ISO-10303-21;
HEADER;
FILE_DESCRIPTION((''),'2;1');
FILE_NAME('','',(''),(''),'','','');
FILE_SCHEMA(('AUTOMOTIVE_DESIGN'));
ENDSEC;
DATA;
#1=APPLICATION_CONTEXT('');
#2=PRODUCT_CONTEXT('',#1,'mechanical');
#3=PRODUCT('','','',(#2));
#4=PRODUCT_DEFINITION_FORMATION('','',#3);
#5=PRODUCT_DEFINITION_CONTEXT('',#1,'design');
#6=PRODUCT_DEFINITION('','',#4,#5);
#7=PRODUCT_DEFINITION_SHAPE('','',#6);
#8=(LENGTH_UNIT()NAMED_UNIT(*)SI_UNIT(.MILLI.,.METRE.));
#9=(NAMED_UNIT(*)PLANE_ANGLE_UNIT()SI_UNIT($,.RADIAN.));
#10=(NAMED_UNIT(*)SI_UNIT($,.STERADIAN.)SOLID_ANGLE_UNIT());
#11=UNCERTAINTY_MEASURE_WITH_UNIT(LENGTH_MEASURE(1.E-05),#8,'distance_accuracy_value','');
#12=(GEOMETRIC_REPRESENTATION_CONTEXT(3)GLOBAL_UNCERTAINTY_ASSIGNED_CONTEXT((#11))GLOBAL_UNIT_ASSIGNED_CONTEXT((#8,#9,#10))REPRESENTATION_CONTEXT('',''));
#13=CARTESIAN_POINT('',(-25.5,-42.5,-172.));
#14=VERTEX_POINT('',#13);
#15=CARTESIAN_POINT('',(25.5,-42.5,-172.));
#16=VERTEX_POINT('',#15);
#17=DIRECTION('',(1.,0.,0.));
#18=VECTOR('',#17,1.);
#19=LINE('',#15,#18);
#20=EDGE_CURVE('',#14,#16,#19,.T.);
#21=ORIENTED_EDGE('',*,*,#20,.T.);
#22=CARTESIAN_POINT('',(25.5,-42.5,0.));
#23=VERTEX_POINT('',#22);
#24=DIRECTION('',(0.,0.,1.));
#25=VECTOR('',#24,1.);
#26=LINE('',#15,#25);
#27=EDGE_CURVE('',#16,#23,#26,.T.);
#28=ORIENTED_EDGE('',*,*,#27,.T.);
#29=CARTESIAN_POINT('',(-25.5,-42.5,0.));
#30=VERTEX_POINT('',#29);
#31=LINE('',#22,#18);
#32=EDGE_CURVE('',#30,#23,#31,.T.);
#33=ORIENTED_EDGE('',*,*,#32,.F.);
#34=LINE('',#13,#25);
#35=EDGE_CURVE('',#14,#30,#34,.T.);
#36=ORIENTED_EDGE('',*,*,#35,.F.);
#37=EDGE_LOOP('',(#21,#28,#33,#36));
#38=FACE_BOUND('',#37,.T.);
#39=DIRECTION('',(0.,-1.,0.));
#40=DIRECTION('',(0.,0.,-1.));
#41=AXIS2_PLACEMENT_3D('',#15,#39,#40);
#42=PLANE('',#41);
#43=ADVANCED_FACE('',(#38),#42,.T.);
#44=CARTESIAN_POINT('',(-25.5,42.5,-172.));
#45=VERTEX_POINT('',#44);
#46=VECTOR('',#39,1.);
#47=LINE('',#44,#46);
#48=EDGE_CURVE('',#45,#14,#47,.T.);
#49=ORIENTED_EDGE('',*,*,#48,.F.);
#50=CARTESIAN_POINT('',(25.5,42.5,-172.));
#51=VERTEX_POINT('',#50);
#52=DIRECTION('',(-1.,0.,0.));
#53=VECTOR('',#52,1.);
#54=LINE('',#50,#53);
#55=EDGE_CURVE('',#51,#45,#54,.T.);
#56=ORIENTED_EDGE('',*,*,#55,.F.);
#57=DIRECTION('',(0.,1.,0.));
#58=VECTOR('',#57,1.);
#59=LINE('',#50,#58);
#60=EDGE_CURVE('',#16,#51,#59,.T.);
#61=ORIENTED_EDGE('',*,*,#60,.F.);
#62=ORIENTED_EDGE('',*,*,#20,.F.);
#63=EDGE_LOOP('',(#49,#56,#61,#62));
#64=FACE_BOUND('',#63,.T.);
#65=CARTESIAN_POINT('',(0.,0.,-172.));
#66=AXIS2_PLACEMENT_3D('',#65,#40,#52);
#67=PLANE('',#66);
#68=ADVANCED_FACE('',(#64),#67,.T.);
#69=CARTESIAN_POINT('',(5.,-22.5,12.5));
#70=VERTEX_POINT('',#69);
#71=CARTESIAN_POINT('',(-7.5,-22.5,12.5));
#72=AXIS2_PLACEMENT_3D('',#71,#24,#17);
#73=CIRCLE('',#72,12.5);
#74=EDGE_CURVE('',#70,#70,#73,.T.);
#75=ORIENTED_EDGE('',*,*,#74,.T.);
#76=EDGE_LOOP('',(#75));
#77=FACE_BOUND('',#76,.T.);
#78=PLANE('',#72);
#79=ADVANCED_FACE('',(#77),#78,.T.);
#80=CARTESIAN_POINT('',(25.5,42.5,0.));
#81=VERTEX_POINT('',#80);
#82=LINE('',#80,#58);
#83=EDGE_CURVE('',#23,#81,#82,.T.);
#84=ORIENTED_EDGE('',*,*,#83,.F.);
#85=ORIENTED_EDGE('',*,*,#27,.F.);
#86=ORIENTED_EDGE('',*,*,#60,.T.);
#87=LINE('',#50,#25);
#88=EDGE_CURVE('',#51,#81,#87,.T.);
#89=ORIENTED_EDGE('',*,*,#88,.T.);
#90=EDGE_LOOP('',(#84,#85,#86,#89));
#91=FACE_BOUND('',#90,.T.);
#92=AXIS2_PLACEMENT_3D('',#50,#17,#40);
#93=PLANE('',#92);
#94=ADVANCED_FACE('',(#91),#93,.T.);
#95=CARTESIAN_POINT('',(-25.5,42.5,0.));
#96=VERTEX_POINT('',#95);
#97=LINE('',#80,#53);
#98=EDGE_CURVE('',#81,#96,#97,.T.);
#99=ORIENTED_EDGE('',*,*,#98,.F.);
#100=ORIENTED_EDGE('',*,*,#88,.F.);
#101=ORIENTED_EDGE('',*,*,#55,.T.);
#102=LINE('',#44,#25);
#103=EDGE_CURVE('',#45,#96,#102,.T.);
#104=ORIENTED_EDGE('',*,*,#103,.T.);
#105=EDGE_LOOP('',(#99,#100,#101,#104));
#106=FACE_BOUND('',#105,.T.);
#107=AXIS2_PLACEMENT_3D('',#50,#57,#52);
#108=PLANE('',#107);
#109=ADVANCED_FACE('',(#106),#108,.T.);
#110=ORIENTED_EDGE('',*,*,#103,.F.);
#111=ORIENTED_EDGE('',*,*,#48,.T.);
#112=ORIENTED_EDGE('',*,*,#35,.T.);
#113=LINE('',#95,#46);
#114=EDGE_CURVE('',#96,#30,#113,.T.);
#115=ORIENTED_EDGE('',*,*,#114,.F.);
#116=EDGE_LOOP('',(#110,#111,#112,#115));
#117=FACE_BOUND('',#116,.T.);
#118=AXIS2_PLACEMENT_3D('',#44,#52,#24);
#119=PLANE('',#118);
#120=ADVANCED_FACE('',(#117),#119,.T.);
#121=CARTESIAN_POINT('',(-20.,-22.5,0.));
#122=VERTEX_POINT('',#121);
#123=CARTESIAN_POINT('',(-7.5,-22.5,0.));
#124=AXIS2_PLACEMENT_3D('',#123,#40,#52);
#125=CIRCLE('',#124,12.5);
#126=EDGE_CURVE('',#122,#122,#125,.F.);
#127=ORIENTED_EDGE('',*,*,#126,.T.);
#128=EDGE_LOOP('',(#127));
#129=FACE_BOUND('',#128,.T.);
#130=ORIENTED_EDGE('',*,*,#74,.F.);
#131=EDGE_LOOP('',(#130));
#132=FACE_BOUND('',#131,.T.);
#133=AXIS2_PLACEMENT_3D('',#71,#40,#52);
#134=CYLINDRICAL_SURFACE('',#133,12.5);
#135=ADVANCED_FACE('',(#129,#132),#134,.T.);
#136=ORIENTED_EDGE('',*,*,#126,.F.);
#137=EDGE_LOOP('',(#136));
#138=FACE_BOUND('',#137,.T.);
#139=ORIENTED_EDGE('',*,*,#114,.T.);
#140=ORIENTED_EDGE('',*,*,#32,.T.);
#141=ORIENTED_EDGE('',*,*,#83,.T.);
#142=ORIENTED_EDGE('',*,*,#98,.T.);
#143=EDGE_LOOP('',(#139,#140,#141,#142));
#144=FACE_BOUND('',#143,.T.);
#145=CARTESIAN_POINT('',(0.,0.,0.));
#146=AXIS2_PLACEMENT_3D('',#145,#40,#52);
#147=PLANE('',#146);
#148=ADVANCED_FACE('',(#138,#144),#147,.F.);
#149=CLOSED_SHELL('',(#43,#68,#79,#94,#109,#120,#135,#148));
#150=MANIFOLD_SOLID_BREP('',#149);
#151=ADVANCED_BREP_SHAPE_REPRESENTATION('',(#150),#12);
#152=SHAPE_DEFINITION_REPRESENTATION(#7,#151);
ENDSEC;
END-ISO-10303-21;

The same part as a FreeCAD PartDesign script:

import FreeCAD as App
import Part
import Sketcher

V = App.Vector


def add_polygon(sketch, points):
    """Adds a closed chain of lines whose ends are joined by coincident constraints."""
    first, n = sketch.GeometryCount, len(points)
    for a, b in zip(points, points[1:] + points[:1]):
        sketch.addGeometry(Part.LineSegment(App.Vector(*a, 0), App.Vector(*b, 0)), False)
    for i in range(n):
        sketch.addConstraint(Sketcher.Constraint("Coincident", first + i, 2, first + (i + 1) % n, 1))

doc = App.newDocument("Part")
body = doc.addObject("PartDesign::Body", "Body")

# Sketch on XY plane
sketch1 = body.newObject("Sketcher::SketchObject", "Sketch")
sketch1.AttachmentSupport = (doc.getObject("XY_Plane"), [""])
sketch1.MapMode = "FlatFace"
add_polygon(sketch1, [(-26, 42), (-26, -42), (26, -42), (26, 42)])  # lines 0-3
sketch1.addConstraint(Sketcher.Constraint("Vertical", 0))
sketch1.addConstraint(Sketcher.Constraint("Horizontal", 1))
sketch1.addConstraint(Sketcher.Constraint("Vertical", 2))
sketch1.addConstraint(Sketcher.Constraint("Horizontal", 3))
sketch1.addConstraint(Sketcher.Constraint("Symmetric", 0, 2, 2, 2, -1, 1))
sketch1.addConstraint(Sketcher.Constraint("DistanceX", 1, 1, 1, 2, 51.0))
sketch1.addConstraint(Sketcher.Constraint("DistanceY", 0, 2, 0, 1, 85.0))
pad1 = body.newObject("PartDesign::Pad", "Pad")
pad1.Profile = sketch1
pad1.Length = 172
pad1.Reversed = True

# Sketch on XY plane
sketch2 = body.newObject("Sketcher::SketchObject", "Sketch001")
sketch2.AttachmentSupport = (doc.getObject("XY_Plane"), [""])
sketch2.MapMode = "FlatFace"
sketch2.addGeometry(Part.Circle(V(-8, -22, 0), V(0, 0, 1), 12), False)
sketch2.addConstraint(Sketcher.Constraint("Diameter", 0, 25.0))
sketch2.addConstraint(Sketcher.Constraint("DistanceX", 0, 3, -1, 1, 7.5))
sketch2.addConstraint(Sketcher.Constraint("DistanceY", 0, 3, -1, 1, 22.5))
pad2 = body.newObject("PartDesign::Pad", "Pad001")
pad2.Profile = sketch2
pad2.Length = 12.5

doc.recompute()
